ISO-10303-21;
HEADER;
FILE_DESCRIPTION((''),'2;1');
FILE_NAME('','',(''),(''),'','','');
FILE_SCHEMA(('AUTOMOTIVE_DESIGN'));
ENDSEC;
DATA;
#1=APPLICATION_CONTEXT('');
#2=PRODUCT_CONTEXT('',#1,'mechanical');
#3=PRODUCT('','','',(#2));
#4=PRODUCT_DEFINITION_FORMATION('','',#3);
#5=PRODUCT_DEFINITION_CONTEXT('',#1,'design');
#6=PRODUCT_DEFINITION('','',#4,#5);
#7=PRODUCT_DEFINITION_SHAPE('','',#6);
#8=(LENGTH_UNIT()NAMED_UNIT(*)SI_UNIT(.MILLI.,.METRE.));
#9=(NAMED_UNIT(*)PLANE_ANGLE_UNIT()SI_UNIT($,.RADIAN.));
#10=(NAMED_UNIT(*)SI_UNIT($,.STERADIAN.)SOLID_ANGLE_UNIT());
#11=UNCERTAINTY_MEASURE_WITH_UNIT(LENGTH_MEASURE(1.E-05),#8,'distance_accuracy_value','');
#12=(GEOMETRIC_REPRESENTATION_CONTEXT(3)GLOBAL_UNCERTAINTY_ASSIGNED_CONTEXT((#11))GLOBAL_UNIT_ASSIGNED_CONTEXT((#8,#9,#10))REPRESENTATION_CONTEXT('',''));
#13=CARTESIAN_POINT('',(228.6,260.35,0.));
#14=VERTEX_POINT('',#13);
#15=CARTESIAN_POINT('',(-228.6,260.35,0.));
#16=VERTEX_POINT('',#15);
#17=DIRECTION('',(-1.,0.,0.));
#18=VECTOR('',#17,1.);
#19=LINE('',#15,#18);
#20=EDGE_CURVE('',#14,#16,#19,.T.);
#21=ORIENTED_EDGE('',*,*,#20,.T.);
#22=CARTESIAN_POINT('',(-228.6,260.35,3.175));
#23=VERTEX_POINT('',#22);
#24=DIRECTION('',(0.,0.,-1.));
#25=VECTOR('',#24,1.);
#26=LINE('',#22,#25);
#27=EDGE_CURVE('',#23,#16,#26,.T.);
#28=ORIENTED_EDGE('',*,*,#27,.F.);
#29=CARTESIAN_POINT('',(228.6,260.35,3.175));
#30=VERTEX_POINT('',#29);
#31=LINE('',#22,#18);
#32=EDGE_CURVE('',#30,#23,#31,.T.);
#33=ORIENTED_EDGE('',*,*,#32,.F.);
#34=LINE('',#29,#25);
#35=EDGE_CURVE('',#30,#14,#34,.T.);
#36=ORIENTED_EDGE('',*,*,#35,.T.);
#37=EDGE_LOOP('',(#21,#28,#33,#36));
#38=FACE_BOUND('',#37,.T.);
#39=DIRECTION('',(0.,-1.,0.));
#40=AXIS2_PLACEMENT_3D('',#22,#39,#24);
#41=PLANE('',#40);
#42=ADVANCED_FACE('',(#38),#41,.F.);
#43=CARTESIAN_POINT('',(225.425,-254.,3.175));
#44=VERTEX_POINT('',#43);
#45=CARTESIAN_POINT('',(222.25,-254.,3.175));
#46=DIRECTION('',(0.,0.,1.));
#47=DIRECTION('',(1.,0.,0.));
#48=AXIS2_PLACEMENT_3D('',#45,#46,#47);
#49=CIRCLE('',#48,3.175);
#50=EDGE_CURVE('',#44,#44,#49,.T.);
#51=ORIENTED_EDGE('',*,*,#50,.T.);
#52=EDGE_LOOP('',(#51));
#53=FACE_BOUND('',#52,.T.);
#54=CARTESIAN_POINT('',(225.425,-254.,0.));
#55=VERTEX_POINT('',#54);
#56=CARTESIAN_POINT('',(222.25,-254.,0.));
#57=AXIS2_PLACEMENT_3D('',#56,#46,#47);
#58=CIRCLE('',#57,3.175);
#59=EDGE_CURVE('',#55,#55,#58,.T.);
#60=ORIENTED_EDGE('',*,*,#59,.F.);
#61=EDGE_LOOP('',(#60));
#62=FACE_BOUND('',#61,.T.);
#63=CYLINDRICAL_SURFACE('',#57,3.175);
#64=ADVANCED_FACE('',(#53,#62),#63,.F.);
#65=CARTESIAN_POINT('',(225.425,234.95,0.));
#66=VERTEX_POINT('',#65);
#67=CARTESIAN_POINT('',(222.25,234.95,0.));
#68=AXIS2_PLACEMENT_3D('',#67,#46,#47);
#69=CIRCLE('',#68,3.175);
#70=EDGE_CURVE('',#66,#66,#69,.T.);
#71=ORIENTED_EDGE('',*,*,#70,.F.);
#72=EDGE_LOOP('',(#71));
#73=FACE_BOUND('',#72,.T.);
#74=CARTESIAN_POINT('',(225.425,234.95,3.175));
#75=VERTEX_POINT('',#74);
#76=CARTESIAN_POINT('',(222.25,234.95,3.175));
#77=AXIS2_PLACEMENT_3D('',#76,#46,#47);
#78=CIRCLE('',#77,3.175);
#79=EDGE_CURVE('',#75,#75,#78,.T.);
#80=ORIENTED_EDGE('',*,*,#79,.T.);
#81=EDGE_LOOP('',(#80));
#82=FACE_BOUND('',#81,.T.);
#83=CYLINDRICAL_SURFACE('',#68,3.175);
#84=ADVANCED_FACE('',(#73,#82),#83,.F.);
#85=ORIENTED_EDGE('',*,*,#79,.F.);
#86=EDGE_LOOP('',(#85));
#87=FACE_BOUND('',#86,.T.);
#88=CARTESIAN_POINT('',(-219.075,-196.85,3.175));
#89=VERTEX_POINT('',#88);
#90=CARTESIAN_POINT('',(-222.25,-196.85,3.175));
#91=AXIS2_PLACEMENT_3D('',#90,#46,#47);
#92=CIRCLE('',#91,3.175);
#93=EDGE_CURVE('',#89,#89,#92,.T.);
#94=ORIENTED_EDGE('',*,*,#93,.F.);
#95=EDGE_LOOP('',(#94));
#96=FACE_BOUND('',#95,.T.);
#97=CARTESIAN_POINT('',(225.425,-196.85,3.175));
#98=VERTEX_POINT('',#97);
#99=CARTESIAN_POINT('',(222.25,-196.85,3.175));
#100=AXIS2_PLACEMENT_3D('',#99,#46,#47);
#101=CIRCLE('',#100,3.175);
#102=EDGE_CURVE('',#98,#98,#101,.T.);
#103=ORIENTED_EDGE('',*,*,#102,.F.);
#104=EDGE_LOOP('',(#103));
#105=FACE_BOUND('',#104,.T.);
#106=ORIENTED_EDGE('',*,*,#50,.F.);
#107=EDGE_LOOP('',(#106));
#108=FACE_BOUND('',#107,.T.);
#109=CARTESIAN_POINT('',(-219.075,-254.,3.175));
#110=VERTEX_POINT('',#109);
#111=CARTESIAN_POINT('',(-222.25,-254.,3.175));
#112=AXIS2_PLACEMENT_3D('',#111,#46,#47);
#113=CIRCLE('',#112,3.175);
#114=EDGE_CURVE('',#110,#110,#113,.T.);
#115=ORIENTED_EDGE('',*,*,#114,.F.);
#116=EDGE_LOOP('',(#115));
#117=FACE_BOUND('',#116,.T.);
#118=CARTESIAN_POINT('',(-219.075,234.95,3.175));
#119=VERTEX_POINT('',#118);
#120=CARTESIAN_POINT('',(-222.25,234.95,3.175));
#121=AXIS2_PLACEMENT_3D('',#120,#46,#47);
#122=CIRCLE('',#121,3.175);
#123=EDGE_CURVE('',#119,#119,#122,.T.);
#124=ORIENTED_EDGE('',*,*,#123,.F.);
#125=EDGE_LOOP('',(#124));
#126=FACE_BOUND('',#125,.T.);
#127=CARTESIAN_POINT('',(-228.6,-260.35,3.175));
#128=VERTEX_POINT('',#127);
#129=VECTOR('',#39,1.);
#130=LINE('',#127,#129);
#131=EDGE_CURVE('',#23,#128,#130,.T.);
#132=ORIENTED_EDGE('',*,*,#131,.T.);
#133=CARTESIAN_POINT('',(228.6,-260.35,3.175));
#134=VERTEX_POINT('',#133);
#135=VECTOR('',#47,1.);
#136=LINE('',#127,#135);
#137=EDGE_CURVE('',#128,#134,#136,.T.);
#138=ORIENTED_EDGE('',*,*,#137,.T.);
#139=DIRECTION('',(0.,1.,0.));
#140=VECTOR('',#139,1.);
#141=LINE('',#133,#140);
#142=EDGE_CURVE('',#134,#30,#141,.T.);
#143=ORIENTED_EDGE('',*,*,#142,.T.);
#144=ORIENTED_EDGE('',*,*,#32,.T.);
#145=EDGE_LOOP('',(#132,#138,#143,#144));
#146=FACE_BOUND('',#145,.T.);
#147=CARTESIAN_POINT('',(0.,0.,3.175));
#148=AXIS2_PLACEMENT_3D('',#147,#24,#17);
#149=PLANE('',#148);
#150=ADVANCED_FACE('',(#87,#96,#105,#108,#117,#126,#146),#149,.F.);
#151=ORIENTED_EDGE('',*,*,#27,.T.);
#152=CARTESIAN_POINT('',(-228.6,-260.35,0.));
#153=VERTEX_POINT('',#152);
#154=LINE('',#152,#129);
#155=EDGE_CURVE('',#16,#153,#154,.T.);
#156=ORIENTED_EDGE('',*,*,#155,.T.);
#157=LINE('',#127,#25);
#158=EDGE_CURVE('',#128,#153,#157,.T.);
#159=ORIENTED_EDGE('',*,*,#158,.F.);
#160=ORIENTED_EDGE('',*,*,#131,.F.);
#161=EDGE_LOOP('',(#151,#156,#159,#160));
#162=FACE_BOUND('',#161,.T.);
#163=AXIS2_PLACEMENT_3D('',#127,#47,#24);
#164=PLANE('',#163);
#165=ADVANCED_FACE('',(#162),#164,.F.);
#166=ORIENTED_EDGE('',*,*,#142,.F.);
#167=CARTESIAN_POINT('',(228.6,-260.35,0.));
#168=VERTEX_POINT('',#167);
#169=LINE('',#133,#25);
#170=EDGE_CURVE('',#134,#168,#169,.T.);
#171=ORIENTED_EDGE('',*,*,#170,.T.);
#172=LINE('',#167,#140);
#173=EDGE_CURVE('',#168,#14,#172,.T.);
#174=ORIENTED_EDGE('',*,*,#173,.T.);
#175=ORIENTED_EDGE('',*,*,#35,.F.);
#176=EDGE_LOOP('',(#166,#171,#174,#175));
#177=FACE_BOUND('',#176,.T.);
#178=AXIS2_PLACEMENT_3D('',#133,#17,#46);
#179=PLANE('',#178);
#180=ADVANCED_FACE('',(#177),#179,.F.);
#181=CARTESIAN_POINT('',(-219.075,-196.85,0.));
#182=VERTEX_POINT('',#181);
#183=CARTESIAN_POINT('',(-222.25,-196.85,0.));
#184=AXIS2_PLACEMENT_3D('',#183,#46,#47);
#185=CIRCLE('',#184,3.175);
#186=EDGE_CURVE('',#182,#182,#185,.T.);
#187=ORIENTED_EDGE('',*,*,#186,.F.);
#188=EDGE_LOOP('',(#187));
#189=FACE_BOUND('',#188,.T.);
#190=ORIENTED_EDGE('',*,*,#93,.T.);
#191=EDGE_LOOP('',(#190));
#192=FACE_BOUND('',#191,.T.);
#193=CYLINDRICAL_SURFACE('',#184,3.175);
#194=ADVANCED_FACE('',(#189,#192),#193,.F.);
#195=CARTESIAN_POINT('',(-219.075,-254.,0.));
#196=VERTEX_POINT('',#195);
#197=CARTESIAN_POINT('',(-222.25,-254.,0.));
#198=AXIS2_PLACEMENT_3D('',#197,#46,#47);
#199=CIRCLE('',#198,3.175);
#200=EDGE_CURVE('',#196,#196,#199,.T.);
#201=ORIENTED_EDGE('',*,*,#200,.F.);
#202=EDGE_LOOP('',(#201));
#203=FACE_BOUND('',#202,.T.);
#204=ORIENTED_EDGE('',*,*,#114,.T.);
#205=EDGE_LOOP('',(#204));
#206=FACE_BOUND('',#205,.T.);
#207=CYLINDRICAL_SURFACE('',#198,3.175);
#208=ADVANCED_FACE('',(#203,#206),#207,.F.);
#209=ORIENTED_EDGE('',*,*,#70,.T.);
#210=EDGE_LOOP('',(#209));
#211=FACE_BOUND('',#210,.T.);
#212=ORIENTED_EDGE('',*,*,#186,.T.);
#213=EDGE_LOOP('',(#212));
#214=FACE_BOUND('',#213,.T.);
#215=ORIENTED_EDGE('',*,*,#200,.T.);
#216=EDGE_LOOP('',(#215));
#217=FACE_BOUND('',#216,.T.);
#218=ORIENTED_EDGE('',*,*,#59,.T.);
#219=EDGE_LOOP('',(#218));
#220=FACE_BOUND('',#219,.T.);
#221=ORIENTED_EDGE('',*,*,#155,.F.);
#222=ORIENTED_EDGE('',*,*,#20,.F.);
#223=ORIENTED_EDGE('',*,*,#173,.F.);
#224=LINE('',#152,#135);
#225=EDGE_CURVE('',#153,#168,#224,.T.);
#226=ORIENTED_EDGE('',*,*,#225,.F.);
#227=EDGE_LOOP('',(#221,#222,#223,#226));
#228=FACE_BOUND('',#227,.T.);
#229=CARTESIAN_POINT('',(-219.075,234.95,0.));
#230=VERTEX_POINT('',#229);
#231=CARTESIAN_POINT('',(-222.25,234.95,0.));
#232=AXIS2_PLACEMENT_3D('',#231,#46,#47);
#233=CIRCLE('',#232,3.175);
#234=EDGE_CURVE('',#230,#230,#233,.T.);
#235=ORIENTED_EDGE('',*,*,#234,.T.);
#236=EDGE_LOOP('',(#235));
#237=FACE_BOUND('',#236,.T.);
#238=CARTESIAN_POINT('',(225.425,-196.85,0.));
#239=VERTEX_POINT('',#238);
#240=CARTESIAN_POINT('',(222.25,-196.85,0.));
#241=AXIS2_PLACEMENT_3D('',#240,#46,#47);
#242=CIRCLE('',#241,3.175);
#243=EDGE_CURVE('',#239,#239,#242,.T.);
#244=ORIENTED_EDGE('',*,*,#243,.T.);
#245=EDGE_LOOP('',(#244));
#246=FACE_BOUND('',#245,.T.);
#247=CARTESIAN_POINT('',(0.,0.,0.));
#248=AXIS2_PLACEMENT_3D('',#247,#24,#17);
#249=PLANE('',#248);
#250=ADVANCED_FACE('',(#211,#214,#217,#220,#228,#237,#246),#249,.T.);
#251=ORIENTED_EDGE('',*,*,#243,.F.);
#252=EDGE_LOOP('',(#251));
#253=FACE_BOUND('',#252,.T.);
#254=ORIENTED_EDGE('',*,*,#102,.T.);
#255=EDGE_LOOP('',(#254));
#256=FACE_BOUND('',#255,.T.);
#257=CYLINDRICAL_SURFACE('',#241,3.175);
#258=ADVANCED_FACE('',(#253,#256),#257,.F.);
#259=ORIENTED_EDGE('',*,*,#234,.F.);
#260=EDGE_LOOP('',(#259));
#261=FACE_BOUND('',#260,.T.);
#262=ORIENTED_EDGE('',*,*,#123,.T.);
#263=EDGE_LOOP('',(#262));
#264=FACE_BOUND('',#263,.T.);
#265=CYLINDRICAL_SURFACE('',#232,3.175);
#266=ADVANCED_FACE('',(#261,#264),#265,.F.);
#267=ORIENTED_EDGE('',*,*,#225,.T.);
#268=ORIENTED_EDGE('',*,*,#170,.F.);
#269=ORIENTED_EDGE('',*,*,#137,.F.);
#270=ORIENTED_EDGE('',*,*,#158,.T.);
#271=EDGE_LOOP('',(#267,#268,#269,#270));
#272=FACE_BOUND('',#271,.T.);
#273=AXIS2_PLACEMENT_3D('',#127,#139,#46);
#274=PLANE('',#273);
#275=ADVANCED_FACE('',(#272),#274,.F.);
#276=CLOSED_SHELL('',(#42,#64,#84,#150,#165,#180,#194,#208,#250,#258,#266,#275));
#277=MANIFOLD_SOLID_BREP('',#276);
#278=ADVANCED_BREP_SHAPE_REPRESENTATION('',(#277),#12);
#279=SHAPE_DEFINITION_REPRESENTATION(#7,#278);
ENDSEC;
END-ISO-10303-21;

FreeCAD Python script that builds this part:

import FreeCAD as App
import Part
import Sketcher
Q = App.Units.Quantity

doc = App.newDocument("Part")
body = doc.addObject("PartDesign::Body", "Body")

sketch1 = body.newObject("Sketcher::SketchObject", "Sketch")
sketch1.AttachmentSupport = (doc.getObject("XY_Plane"), [""])
sketch1.MapMode = "FlatFace"
sketch1.addGeometry(Part.LineSegment(App.Vector(-229, 260, 0), App.Vector(-229, -260, 0)), False)
sketch1.addGeometry(Part.LineSegment(App.Vector(-229, -260, 0), App.Vector(229, -260, 0)), False)
sketch1.addGeometry(Part.LineSegment(App.Vector(229, -260, 0), App.Vector(229, 260, 0)), False)
sketch1.addGeometry(Part.LineSegment(App.Vector(229, 260, 0), App.Vector(-229, 260, 0)), False)
sketch1.addConstraint(Sketcher.Constraint("Coincident", 0, 2, 1, 1))
sketch1.addConstraint(Sketcher.Constraint("Coincident", 1, 2, 2, 1))
sketch1.addConstraint(Sketcher.Constraint("Coincident", 2, 2, 3, 1))
sketch1.addConstraint(Sketcher.Constraint("Coincident", 3, 2, 0, 1))
sketch1.addConstraint(Sketcher.Constraint("Vertical", 0))
sketch1.addConstraint(Sketcher.Constraint("Horizontal", 1))
sketch1.addConstraint(Sketcher.Constraint("Vertical", 2))
sketch1.addConstraint(Sketcher.Constraint("Horizontal", 3))
sketch1.addConstraint(Sketcher.Constraint("Symmetric", 0, 2, 2, 2, -1, 1))
sketch1.addConstraint(Sketcher.Constraint("DistanceX", 1, 1, 1, 2, Q("18 in")))
sketch1.addConstraint(Sketcher.Constraint("DistanceY", 0, 2, 0, 1, Q("20.5 in")))
pad1 = body.newObject("PartDesign::Pad", "Pad")
pad1.Profile = sketch1
pad1.Length = Q("0.125 in")

sketch2 = body.newObject("Sketcher::SketchObject", "Sketch001")
sketch2.AttachmentSupport = (doc.getObject("XY_Plane"), [""])
sketch2.MapMode = "FlatFace"
sketch2.AttachmentOffset = App.Placement(App.Vector(0, 0, 0.125 * 25.4), App.Rotation())
sketch2.addGeometry(Part.Circle(App.Vector(-222.2, 234.9, 0), App.Vector(0, 0, 1), 3.2), False)
sketch2.addGeometry(Part.Circle(App.Vector(222.2, 234.9, 0), App.Vector(0, 0, 1), 3.2), False)
sketch2.addGeometry(Part.Circle(App.Vector(-222.2, -254, 0), App.Vector(0, 0, 1), 3.2), False)
sketch2.addGeometry(Part.Circle(App.Vector(222.2, -254, 0), App.Vector(0, 0, 1), 3.2), False)
sketch2.addGeometry(Part.Circle(App.Vector(-222.2, -196.8, 0), App.Vector(0, 0, 1), 3.2), False)
sketch2.addGeometry(Part.Circle(App.Vector(222.2, -196.8, 0), App.Vector(0, 0, 1), 3.2), False)
sketch2.addConstraint(Sketcher.Constraint("Equal", 0, 1))
sketch2.addConstraint(Sketcher.Constraint("Equal", 1, 2))
sketch2.addConstraint(Sketcher.Constraint("Equal", 2, 3))
sketch2.addConstraint(Sketcher.Constraint("Equal", 3, 4))
sketch2.addConstraint(Sketcher.Constraint("Equal", 4, 5))
sketch2.addConstraint(Sketcher.Constraint("Symmetric", 0, 3, 1, 3, -2))
sketch2.addConstraint(Sketcher.Constraint("Symmetric", 2, 3, 3, 3, -2))
sketch2.addConstraint(Sketcher.Constraint("Symmetric", 4, 3, 5, 3, -2))
sketch2.addConstraint(Sketcher.Constraint("Vertical", 0, 3, 2, 3))
sketch2.addConstraint(Sketcher.Constraint("Vertical", 2, 3, 4, 3))
sketch2.addConstraint(Sketcher.Constraint("Diameter", 0, Q("0.25 in")))
sketch2.addConstraint(Sketcher.Constraint("DistanceY", 2, 3, -1, 1, Q("10 in")))
sketch2.addConstraint(Sketcher.Constraint("DistanceY", 4, 3, 0, 3, Q("17 in")))
sketch2.addConstraint(Sketcher.Constraint("DistanceX", 0, 3, 1, 3, Q("17.5 in")))
sketch2.addConstraint(Sketcher.Constraint("DistanceY", -1, 1, 0, 3, Q("9.25 in")))
pocket1 = body.newObject("PartDesign::Pocket", "Pocket")
pocket1.Profile = sketch2
pocket1.Length = Q("0.125 in")

doc.recompute()
